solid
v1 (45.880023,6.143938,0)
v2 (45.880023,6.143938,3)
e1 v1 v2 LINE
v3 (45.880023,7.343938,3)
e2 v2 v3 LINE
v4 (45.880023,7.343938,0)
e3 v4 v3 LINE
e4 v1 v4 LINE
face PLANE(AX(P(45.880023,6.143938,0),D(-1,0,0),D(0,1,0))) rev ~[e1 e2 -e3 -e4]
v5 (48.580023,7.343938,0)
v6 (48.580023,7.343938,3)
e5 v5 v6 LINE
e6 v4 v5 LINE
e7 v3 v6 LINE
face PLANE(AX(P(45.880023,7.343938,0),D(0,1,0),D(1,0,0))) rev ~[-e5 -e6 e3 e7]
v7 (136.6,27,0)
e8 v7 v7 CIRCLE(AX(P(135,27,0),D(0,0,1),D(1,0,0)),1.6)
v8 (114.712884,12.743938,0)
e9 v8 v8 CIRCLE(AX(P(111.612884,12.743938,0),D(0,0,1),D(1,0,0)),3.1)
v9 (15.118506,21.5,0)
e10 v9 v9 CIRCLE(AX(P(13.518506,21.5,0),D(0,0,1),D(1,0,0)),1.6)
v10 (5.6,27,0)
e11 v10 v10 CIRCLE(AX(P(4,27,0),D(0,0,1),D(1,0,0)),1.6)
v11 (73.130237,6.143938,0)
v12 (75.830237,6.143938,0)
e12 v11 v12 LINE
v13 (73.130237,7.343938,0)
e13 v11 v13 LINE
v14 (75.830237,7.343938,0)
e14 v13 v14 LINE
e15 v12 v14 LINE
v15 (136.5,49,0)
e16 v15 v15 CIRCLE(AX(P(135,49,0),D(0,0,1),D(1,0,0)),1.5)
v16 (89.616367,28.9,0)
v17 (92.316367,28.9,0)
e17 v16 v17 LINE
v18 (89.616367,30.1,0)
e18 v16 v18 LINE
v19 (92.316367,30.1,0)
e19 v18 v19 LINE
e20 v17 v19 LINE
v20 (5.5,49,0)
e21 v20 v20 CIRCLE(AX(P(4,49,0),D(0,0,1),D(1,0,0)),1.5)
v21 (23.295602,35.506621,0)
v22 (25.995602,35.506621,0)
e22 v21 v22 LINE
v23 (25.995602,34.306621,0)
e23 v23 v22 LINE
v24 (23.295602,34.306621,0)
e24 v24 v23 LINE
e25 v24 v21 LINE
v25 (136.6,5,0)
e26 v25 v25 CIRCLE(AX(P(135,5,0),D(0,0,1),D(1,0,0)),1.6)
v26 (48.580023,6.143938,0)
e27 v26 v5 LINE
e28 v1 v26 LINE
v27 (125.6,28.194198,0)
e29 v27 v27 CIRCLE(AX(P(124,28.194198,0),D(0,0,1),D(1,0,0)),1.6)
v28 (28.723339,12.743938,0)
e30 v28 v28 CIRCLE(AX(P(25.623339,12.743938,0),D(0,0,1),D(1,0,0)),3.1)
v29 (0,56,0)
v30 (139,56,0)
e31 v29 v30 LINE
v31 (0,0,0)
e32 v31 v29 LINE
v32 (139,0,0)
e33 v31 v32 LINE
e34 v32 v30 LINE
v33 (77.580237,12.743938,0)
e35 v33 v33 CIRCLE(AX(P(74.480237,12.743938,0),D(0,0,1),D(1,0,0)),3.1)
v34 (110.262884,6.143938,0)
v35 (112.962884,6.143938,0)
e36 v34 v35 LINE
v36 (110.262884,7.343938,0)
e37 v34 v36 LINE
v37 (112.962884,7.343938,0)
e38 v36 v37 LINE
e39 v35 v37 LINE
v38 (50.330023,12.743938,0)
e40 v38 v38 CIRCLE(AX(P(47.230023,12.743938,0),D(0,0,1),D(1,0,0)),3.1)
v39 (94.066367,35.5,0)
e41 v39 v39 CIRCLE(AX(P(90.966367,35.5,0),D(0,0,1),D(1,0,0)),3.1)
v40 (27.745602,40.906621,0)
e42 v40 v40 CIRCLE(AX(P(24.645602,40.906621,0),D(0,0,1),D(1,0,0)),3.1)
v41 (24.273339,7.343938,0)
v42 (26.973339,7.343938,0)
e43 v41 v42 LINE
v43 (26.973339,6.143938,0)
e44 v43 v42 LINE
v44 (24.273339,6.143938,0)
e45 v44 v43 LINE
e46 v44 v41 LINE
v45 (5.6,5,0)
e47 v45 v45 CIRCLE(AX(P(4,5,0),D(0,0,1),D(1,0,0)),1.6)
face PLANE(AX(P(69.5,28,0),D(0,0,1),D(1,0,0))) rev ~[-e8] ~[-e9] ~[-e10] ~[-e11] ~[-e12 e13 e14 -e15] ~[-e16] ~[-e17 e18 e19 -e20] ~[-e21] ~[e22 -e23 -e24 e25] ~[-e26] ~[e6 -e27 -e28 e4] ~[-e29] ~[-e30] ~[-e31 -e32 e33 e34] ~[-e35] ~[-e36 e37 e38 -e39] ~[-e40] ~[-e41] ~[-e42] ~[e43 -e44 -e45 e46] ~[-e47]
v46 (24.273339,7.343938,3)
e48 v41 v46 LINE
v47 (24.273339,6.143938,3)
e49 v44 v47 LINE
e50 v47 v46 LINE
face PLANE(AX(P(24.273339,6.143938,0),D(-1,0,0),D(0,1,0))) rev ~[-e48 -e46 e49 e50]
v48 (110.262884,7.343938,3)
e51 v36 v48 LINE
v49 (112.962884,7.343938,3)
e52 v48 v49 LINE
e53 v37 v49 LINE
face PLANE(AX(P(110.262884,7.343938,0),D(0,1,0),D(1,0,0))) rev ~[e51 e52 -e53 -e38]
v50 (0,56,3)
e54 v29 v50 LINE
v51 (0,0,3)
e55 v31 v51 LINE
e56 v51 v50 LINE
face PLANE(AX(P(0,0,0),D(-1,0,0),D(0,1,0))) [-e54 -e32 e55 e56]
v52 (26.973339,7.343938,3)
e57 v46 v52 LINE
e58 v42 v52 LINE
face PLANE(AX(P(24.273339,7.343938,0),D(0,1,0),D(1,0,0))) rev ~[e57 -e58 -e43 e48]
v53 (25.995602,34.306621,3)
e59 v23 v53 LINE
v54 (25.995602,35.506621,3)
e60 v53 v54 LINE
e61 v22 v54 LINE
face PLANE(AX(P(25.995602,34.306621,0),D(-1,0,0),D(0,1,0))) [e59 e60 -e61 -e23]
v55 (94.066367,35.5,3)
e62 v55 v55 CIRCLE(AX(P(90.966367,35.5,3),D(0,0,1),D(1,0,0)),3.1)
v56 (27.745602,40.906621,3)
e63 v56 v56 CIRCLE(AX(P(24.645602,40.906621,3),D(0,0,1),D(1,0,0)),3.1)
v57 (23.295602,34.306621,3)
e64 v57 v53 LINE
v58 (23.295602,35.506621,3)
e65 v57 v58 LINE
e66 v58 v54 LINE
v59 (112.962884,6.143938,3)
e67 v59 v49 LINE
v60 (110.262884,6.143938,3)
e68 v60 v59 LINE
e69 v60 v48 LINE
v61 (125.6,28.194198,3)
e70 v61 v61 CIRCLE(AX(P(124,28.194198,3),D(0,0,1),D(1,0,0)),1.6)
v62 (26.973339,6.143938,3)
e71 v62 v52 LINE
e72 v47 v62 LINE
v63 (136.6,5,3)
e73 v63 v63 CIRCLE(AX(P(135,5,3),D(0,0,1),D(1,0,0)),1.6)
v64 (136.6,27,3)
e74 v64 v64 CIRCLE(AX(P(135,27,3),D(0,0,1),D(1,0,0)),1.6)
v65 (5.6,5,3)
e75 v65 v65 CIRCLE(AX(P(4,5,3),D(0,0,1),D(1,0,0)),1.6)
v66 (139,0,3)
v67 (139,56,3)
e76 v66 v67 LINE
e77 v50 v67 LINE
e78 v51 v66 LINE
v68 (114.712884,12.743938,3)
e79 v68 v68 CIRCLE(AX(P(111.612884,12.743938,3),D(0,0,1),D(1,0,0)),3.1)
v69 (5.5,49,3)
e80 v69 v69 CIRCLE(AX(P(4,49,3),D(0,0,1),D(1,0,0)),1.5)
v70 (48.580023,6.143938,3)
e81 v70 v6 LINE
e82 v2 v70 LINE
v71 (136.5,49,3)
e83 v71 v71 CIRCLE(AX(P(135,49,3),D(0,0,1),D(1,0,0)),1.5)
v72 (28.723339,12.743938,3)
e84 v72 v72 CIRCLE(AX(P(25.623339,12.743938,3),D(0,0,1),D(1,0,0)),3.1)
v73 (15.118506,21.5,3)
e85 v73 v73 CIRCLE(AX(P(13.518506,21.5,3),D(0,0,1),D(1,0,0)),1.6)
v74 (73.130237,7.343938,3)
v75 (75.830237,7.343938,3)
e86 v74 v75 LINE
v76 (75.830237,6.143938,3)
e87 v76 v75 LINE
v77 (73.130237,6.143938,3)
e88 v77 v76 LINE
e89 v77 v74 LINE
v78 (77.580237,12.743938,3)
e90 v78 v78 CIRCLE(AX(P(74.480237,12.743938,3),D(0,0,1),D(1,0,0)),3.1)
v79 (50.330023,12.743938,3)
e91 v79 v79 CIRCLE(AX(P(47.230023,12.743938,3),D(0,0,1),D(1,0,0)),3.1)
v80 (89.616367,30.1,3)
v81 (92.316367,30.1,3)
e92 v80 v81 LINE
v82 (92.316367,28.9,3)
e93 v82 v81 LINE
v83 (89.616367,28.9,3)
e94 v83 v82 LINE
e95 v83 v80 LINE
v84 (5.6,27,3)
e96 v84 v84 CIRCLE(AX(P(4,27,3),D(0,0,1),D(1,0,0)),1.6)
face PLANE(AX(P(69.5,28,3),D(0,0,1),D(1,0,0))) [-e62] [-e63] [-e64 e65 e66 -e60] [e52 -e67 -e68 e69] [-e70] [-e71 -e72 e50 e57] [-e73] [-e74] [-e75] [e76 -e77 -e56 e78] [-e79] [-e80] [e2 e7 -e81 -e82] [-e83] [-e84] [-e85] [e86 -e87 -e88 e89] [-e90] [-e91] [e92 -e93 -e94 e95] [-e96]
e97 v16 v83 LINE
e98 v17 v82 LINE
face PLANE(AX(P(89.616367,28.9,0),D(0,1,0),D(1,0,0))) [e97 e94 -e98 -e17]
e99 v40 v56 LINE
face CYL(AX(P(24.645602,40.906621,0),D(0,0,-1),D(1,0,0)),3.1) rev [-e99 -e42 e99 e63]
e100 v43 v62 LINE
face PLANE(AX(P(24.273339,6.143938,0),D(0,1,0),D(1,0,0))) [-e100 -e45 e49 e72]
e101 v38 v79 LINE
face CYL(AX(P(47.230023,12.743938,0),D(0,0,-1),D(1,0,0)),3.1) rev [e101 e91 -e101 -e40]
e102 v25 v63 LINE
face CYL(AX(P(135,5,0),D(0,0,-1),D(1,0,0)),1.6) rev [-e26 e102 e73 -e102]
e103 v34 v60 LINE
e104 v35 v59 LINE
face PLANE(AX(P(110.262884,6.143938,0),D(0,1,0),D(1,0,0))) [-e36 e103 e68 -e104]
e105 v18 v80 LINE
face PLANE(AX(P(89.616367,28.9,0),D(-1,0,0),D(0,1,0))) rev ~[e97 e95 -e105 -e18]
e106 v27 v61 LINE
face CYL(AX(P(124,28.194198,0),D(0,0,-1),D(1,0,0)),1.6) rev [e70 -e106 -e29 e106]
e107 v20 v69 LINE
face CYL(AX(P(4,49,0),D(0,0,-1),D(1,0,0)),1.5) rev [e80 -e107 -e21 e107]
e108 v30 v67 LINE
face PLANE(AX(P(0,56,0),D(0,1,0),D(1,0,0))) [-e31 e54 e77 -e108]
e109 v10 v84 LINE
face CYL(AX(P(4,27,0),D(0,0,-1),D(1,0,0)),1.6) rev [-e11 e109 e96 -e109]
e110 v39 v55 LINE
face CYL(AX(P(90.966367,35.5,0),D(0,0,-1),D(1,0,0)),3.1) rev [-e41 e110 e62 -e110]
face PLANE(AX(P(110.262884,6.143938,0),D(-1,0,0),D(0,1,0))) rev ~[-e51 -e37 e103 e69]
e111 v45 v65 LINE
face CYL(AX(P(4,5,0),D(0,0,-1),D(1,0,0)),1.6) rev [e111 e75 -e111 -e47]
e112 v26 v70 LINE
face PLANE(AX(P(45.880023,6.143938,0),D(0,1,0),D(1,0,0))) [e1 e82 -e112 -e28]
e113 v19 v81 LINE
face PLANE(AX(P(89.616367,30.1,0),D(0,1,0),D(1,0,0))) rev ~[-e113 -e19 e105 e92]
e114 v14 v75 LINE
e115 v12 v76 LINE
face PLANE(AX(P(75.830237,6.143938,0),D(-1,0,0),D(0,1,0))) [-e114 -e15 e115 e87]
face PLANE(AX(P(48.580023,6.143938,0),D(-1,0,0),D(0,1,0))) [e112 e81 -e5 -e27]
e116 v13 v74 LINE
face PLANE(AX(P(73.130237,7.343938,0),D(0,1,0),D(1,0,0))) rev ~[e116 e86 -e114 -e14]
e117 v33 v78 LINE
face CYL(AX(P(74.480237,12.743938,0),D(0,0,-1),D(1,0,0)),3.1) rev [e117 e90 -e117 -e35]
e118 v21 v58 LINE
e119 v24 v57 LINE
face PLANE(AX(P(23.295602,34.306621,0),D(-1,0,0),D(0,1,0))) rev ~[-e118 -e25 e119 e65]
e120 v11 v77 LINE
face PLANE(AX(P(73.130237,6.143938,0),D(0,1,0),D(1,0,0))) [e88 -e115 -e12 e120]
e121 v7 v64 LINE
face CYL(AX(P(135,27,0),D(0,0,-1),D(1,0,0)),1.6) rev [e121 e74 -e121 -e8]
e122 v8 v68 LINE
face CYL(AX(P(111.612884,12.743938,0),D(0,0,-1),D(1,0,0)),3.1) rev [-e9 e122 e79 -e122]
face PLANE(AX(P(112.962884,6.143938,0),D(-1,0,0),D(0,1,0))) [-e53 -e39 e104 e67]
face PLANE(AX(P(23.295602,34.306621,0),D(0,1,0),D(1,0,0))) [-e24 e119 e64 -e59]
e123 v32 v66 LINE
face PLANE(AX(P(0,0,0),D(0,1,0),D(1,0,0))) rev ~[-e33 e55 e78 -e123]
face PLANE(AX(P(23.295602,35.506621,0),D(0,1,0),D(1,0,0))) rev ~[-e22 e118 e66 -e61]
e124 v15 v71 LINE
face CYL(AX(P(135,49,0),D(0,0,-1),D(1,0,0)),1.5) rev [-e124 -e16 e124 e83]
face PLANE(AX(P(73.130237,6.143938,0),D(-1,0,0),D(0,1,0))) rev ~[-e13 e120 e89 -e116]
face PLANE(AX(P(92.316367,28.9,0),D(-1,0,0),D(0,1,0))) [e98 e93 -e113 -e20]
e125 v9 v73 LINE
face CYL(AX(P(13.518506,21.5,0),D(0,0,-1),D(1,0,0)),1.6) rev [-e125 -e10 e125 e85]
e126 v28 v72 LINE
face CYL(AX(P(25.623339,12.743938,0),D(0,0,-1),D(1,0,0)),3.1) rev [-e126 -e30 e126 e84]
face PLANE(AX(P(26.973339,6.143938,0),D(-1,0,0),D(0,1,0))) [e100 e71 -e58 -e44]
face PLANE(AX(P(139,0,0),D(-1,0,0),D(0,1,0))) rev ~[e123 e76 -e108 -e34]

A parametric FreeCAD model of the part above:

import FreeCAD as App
import Part
import Sketcher


def add_polygon(sketch, points):
    """Adds a closed chain of lines whose ends are joined by coincident constraints."""
    first, n = sketch.GeometryCount, len(points)
    for a, b in zip(points, points[1:] + points[:1]):
        sketch.addGeometry(Part.LineSegment(App.Vector(*a, 0), App.Vector(*b, 0)), False)
    for i in range(n):
        sketch.addConstraint(Sketcher.Constraint("Coincident", first + i, 2, first + (i + 1) % n, 1))

doc = App.newDocument("Part")
body = doc.addObject("PartDesign::Body", "Body")

# Sketch on XY plane
sketch1 = body.newObject("Sketcher::SketchObject", "Sketch")
sketch1.AttachmentSupport = (doc.getObject("XY_Plane"), [""])
sketch1.MapMode = "FlatFace"
add_polygon(sketch1, [(0, 56), (0, 0), (139, 0), (139, 56)])  # lines 0-3
sketch1.addGeometry(Part.Circle(App.Vector(4, 5, 0), App.Vector(0, 0, 1), 1.6), False)  # 4
add_polygon(sketch1, [(27, 6.1), (24.3, 6.1), (24.3, 7.3), (27, 7.3)])  # lines 5-8
sketch1.addGeometry(Part.Circle(App.Vector(25.6, 12.7, 0), App.Vector(0, 0, 1), 3.1), False)  # 9
add_polygon(sketch1, [(48.6, 6.1), (45.9, 6.1), (45.9, 7.3), (48.6, 7.3)])  # lines 10-13
sketch1.addGeometry(Part.Circle(App.Vector(47.2, 12.7, 0), App.Vector(0, 0, 1), 3.1), False)  # 14
sketch1.addGeometry(Part.Circle(App.Vector(13.5, 21.5, 0), App.Vector(0, 0, 1), 1.6), False)  # 15
add_polygon(sketch1, [(75.8, 6.1), (73.1, 6.1), (73.1, 7.3), (75.8, 7.3)])  # lines 16-19
sketch1.addGeometry(Part.Circle(App.Vector(74.5, 12.7, 0), App.Vector(0, 0, 1), 3.1), False)  # 20
add_polygon(sketch1, [(113, 6.1), (110.3, 6.1), (110.3, 7.3), (113, 7.3)])  # lines 21-24
sketch1.addGeometry(Part.Circle(App.Vector(135, 5, 0), App.Vector(0, 0, 1), 1.6), False)  # 25
sketch1.addGeometry(Part.Circle(App.Vector(111.6, 12.7, 0), App.Vector(0, 0, 1), 3.1), False)  # 26
sketch1.addGeometry(Part.Circle(App.Vector(4, 27, 0), App.Vector(0, 0, 1), 1.6), False)  # 27
add_polygon(sketch1, [(26, 34.3), (23.3, 34.3), (23.3, 35.5), (26, 35.5)])  # lines 28-31
sketch1.addGeometry(Part.Circle(App.Vector(24.6, 40.9, 0), App.Vector(0, 0, 1), 3.1), False)  # 32
sketch1.addGeometry(Part.Circle(App.Vector(4, 49, 0), App.Vector(0, 0, 1), 1.5), False)  # 33
add_polygon(sketch1, [(92.3, 28.9), (89.6, 28.9), (89.6, 30.1), (92.3, 30.1)])  # lines 34-37
sketch1.addGeometry(Part.Circle(App.Vector(91, 35.5, 0), App.Vector(0, 0, 1), 3.1), False)  # 38
sketch1.addGeometry(Part.Circle(App.Vector(124, 28.2, 0), App.Vector(0, 0, 1), 1.6), False)  # 39
sketch1.addGeometry(Part.Circle(App.Vector(135, 27, 0), App.Vector(0, 0, 1), 1.6), False)  # 40
sketch1.addGeometry(Part.Circle(App.Vector(135, 49, 0), App.Vector(0, 0, 1), 1.5), False)  # 41
sketch1.addConstraint([
    Sketcher.Constraint("Vertical", 0),
    Sketcher.Constraint("Horizontal", 1),
    Sketcher.Constraint("Vertical", 2),
    Sketcher.Constraint("Horizontal", 3),
    Sketcher.Constraint("Horizontal", 5),
    Sketcher.Constraint("Vertical", 6),
    Sketcher.Constraint("Horizontal", 7),
    Sketcher.Constraint("Vertical", 8),
    Sketcher.Constraint("Horizontal", 10),
    Sketcher.Constraint("Vertical", 11),
    Sketcher.Constraint("Horizontal", 12),
    Sketcher.Constraint("Vertical", 13),
    Sketcher.Constraint("Horizontal", 16),
    Sketcher.Constraint("Vertical", 17),
    Sketcher.Constraint("Horizontal", 18),
    Sketcher.Constraint("Vertical", 19),
    Sketcher.Constraint("Horizontal", 21),
    Sketcher.Constraint("Vertical", 22),
    Sketcher.Constraint("Horizontal", 23),
    Sketcher.Constraint("Vertical", 24),
    Sketcher.Constraint("Horizontal", 28),
    Sketcher.Constraint("Vertical", 29),
    Sketcher.Constraint("Horizontal", 30),
    Sketcher.Constraint("Vertical", 31),
    Sketcher.Constraint("Horizontal", 34),
    Sketcher.Constraint("Vertical", 35),
    Sketcher.Constraint("Horizontal", 36),
    Sketcher.Constraint("Vertical", 37),
    Sketcher.Constraint("Coincident", 0, 2, -1, 1),
    Sketcher.Constraint("Equal", 9, 14),
    Sketcher.Constraint("Equal", 4, 15),
    Sketcher.Constraint("Equal", 14, 20),
    Sketcher.Constraint("Equal", 15, 25),
    Sketcher.Constraint("Equal", 20, 26),
    Sketcher.Constraint("Equal", 25, 27),
    Sketcher.Constraint("Equal", 26, 32),
    Sketcher.Constraint("Equal", 32, 38),
    Sketcher.Constraint("Equal", 27, 39),
    Sketcher.Constraint("Equal", 39, 40),
    Sketcher.Constraint("Equal", 33, 41),
    Sketcher.Constraint("Horizontal", 9, 3, 14, 3),
    Sketcher.Constraint("Horizontal", 14, 3, 20, 3),
    Sketcher.Constraint("Horizontal", 4, 3, 25, 3),
    Sketcher.Constraint("Horizontal", 20, 3, 26, 3),
    Sketcher.Constraint("Horizontal", 27, 3, 40, 3),
    Sketcher.Constraint("Horizontal", 33, 3, 41, 3),
    Sketcher.Constraint("Horizontal", 8, 2, 10, 2),
    Sketcher.Constraint("Horizontal", 7, 2, 11, 2),
    Sketcher.Constraint("Horizontal", 13, 2, 16, 2),
    Sketcher.Constraint("Horizontal", 12, 2, 17, 2),
    Sketcher.Constraint("Horizontal", 19, 2, 21, 2),
    Sketcher.Constraint("Horizontal", 18, 2, 22, 2),
    Sketcher.Constraint("Vertical", 4, 3, 27, 3),
    Sketcher.Constraint("Vertical", 27, 3, 33, 3),
    Sketcher.Constraint("Vertical", 25, 3, 40, 3),
    Sketcher.Constraint("Vertical", 40, 3, 41, 3),
    Sketcher.Constraint("Equal", 7, 10),
    Sketcher.Constraint("Equal", 12, 16),
    Sketcher.Constraint("Equal", 18, 21),
    Sketcher.Constraint("Equal", 23, 28),
    Sketcher.Constraint("Equal", 30, 34),
    Sketcher.Constraint("Equal", 24, 29),
    Sketcher.Constraint("Equal", 31, 35),
    Sketcher.Constraint("Diameter", 33, 3.0),
    Sketcher.Constraint("Diameter", 4, 3.2),
    Sketcher.Constraint("Diameter", 9, 6.2),
    Sketcher.Constraint("DistanceX", 1, 1, 1, 2, 139.0),
    Sketcher.Constraint("DistanceY", 0, 2, 0, 1, 56.0),
    Sketcher.Constraint("DistanceX", 5, 2, 5, 1, 2.7),
    Sketcher.Constraint("DistanceY", 6, 1, 6, 2, 1.2),
    Sketcher.Constraint("DistanceX", -1, 1, 4, 3, 4.0),
    Sketcher.Constraint("DistanceY", -1, 1, 4, 3, 5.0),
    Sketcher.Constraint("DistanceX", -1, 1, 25, 3, 135.0),
    Sketcher.Constraint("DistanceY", -1, 1, 27, 3, 27.0),
    Sketcher.Constraint("DistanceY", -1, 1, 33, 3, 49.0),
    Sketcher.Constraint("DistanceX", -1, 1, 39, 3, 124.0),
    Sketcher.Constraint("DistanceY", -1, 1, 15, 3, 21.5),
    Sketcher.Constraint("DistanceY", -1, 1, 38, 3, 35.5),
    Sketcher.Constraint("DistanceY", -1, 1, 34, 2, 28.9),
    Sketcher.Constraint("DistanceY", 5, 2, 9, 3, 6.6),
    Sketcher.Constraint("DistanceY", 28, 2, 32, 3, 6.6),
    Sketcher.Constraint("DistanceX", 5, 2, 9, 3, 1.35),
    Sketcher.Constraint("DistanceX", 10, 2, 14, 3, 1.35),
    Sketcher.Constraint("DistanceX", 16, 2, 20, 3, 1.35),
    Sketcher.Constraint("DistanceX", 21, 2, 26, 3, 1.35),
    Sketcher.Constraint("DistanceX", 28, 2, 32, 3, 1.35),
    Sketcher.Constraint("DistanceX", 34, 2, 38, 3, 1.35),
    Sketcher.Constraint("DistanceX", -1, 1, 9, 3, 25.623339),
    Sketcher.Constraint("DistanceY", -1, 1, 32, 3, 40.906621),
    Sketcher.Constraint("DistanceX", 15, 3, 20, 3, 60.961731),
    Sketcher.Constraint("DistanceX", 14, 3, 26, 3, 64.382861),
    Sketcher.Constraint("DistanceX", 15, 3, 26, 3, 98.094379),
    Sketcher.Constraint("DistanceX", 32, 3, 14, 3, 22.584421),
    Sketcher.Constraint("DistanceX", 20, 3, 38, 3, 16.48613),
    Sketcher.Constraint("DistanceY", 26, 3, 39, 3, 15.45026),
    Sketcher.Constraint("DistanceY", -1, 1, 9, 3, 12.743938),
    Sketcher.Constraint("DistanceX", -1, 1, 14, 3, 47.230023),
])
pad1 = body.newObject("PartDesign::Pad", "Pad")
pad1.Profile = sketch1
pad1.Length = 3

doc.recompute()
